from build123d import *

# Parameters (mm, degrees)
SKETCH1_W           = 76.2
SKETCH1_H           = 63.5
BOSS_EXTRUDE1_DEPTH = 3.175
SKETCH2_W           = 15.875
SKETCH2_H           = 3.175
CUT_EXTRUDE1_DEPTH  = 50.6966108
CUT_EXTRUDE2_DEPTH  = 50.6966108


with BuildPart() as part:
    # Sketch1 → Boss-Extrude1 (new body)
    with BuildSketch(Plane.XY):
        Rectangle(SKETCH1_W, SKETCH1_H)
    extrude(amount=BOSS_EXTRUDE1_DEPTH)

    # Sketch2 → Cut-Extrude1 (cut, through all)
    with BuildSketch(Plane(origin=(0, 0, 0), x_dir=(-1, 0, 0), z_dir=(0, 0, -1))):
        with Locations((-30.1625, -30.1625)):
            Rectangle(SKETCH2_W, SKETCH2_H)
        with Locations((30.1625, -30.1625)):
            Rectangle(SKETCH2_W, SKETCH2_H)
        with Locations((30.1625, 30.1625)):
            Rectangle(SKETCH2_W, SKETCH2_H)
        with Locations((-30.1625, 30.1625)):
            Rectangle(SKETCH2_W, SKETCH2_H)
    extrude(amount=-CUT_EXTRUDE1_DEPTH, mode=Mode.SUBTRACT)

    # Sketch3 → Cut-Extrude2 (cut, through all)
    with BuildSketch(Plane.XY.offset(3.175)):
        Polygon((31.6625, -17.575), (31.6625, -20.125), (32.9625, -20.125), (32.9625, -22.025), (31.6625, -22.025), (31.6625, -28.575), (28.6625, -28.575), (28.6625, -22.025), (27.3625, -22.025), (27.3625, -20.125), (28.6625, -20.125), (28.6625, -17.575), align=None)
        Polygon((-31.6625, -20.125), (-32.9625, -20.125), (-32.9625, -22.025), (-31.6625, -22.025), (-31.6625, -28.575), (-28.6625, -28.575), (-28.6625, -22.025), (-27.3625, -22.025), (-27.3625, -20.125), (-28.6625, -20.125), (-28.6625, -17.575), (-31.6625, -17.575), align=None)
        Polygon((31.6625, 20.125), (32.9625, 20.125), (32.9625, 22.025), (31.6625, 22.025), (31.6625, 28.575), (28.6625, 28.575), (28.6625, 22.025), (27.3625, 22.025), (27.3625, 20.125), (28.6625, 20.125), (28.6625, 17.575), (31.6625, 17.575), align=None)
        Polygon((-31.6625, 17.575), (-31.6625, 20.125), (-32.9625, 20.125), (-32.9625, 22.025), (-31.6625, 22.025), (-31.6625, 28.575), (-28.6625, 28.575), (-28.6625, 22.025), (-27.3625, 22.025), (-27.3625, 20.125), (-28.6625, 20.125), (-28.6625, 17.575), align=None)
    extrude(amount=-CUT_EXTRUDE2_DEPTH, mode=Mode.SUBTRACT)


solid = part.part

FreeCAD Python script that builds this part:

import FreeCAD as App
import Part
import Sketcher

V = App.Vector
Q = App.Units.Quantity

doc = App.newDocument("Part")
body = doc.addObject("PartDesign::Body", "Body")

# Sketch on XY plane
sketch1 = body.newObject("Sketcher::SketchObject", "Sketch")
sketch1.AttachmentSupport = (doc.getObject("XY_Plane"), [""])
sketch1.MapMode = "FlatFace"
sketch1.addGeometry([
    Part.LineSegment(V(-38, 32, 0), V(-38, -32, 0)),
    Part.LineSegment(V(-38, -32, 0), V(38, -32, 0)),
    Part.LineSegment(V(38, -32, 0), V(38, 32, 0)),
    Part.LineSegment(V(38, 32, 0), V(-38, 32, 0)),
], False)
sketch1.addConstraint([
    Sketcher.Constraint("Coincident", 0, 2, 1, 1),
    Sketcher.Constraint("Coincident", 1, 2, 2, 1),
    Sketcher.Constraint("Coincident", 2, 2, 3, 1),
    Sketcher.Constraint("Coincident", 3, 2, 0, 1),
    Sketcher.Constraint("Vertical", 0),
    Sketcher.Constraint("Horizontal", 1),
    Sketcher.Constraint("Vertical", 2),
    Sketcher.Constraint("Horizontal", 3),
    Sketcher.Constraint("Symmetric", 0, 2, 2, 2, -1, 1),
    Sketcher.Constraint("DistanceX", 1, 1, 1, 2, Q("3 in")),
    Sketcher.Constraint("DistanceY", 0, 2, 0, 1, Q("2.5 in")),
])
pad1 = body.newObject("PartDesign::Pad", "Pad")
pad1.Profile = sketch1
pad1.Length = Q("0.125 in")

# Sketch on XY plane
sketch2 = body.newObject("Sketcher::SketchObject", "Sketch001")
sketch2.AttachmentSupport = (doc.getObject("XY_Plane"), [""])
sketch2.MapMode = "FlatFace"
sketch2.addGeometry([
    Part.LineSegment(V(38.1, -28.6, 0), V(38.1, -31.8, 0)),  # 0
    Part.LineSegment(V(38.1, -31.8, 0), V(22.2, -31.8, 0)),  # 1
    Part.LineSegment(V(22.2, -31.8, 0), V(22.2, -28.6, 0)),  # 2
    Part.LineSegment(V(22.2, -28.6, 0), V(38.1, -28.6, 0)),  # 3
    Part.LineSegment(V(-22.2, -28.6, 0), V(-22.2, -31.8, 0)),  # 4
    Part.LineSegment(V(-22.2, -31.8, 0), V(-38.1, -31.8, 0)),  # 5
    Part.LineSegment(V(-38.1, -31.8, 0), V(-38.1, -28.6, 0)),  # 6
    Part.LineSegment(V(-38.1, -28.6, 0), V(-22.2, -28.6, 0)),  # 7
    Part.LineSegment(V(-22.2, 31.8, 0), V(-22.2, 28.6, 0)),  # 8
    Part.LineSegment(V(-22.2, 28.6, 0), V(-38.1, 28.6, 0)),  # 9
    Part.LineSegment(V(-38.1, 28.6, 0), V(-38.1, 31.8, 0)),  # 10
    Part.LineSegment(V(-38.1, 31.8, 0), V(-22.2, 31.8, 0)),  # 11
    Part.LineSegment(V(38.1, 31.8, 0), V(38.1, 28.6, 0)),  # 12
    Part.LineSegment(V(38.1, 28.6, 0), V(22.2, 28.6, 0)),  # 13
    Part.LineSegment(V(22.2, 28.6, 0), V(22.2, 31.8, 0)),  # 14
    Part.LineSegment(V(22.2, 31.8, 0), V(38.1, 31.8, 0)),  # 15
], False)
sketch2.addConstraint([
    Sketcher.Constraint("Coincident", 0, 2, 1, 1),
    Sketcher.Constraint("Coincident", 1, 2, 2, 1),
    Sketcher.Constraint("Coincident", 2, 2, 3, 1),
    Sketcher.Constraint("Coincident", 3, 2, 0, 1),
    Sketcher.Constraint("Coincident", 4, 2, 5, 1),
    Sketcher.Constraint("Coincident", 5, 2, 6, 1),
    Sketcher.Constraint("Coincident", 6, 2, 7, 1),
    Sketcher.Constraint("Coincident", 7, 2, 4, 1),
    Sketcher.Constraint("Coincident", 8, 2, 9, 1),
    Sketcher.Constraint("Coincident", 9, 2, 10, 1),
    Sketcher.Constraint("Coincident", 10, 2, 11, 1),
    Sketcher.Constraint("Coincident", 11, 2, 8, 1),
    Sketcher.Constraint("Coincident", 12, 2, 13, 1),
    Sketcher.Constraint("Coincident", 13, 2, 14, 1),
    Sketcher.Constraint("Coincident", 14, 2, 15, 1),
    Sketcher.Constraint("Coincident", 15, 2, 12, 1),
    Sketcher.Constraint("Vertical", 0),
    Sketcher.Constraint("Horizontal", 1),
    Sketcher.Constraint("Vertical", 2),
    Sketcher.Constraint("Horizontal", 3),
    Sketcher.Constraint("Vertical", 4),
    Sketcher.Constraint("Horizontal", 5),
    Sketcher.Constraint("Vertical", 6),
    Sketcher.Constraint("Horizontal", 7),
    Sketcher.Constraint("Vertical", 8),
    Sketcher.Constraint("Horizontal", 9),
    Sketcher.Constraint("Vertical", 10),
    Sketcher.Constraint("Horizontal", 11),
    Sketcher.Constraint("Vertical", 12),
    Sketcher.Constraint("Horizontal", 13),
    Sketcher.Constraint("Vertical", 14),
    Sketcher.Constraint("Horizontal", 15),
    Sketcher.Constraint("Symmetric", 2, 2, 8, 2, -1, 1),
    Sketcher.Constraint("Symmetric", 0, 2, 10, 2, -1, 1),
    Sketcher.Constraint("Symmetric", 6, 2, 12, 2, -1, 1),
    Sketcher.Constraint("Symmetric", 4, 2, 14, 2, -1, 1),
    Sketcher.Constraint("Symmetric", 1, 2, 4, 2, -2),
    Sketcher.Constraint("Symmetric", 3, 2, 6, 2, -2),
    Sketcher.Constraint("DistanceX", 5, 2, 0, 2, Q("3 in")),
    Sketcher.Constraint("DistanceY", 5, 2, 10, 2, Q("2.5 in")),
    Sketcher.Constraint("DistanceX", 1, 2, 1, 1, Q("0.625 in")),
    Sketcher.Constraint("DistanceY", 0, 2, 0, 1, Q("0.125 in")),
])
pocket1 = body.newObject("PartDesign::Pocket", "Pocket")
pocket1.Profile = sketch2
pocket1.Type = "ThroughAll"
pocket1.Reversed = True

# Sketch on XY plane
sketch3 = body.newObject("Sketcher::SketchObject", "Sketch002")
sketch3.AttachmentSupport = (doc.getObject("XY_Plane"), [""])
sketch3.MapMode = "FlatFace"
sketch3.AttachmentOffset = App.Placement(V(0, 0, 0.125 * 25.4), App.Rotation())
sketch3.addGeometry([
    Part.LineSegment(V(31.7, -20.1, 0), V(31.7, -17.6, 0)),  # 0
    Part.LineSegment(V(31.7, -17.6, 0), V(28.7, -17.6, 0)),  # 1
    Part.LineSegment(V(28.7, -17.6, 0), V(28.7, -20.1, 0)),  # 2
    Part.LineSegment(V(28.7, -20.1, 0), V(27.4, -20.1, 0)),  # 3
    Part.LineSegment(V(27.4, -20.1, 0), V(27.4, -22, 0)),  # 4
    Part.LineSegment(V(27.4, -22, 0), V(28.7, -22, 0)),  # 5
    Part.LineSegment(V(28.7, -22, 0), V(28.7, -28.6, 0)),  # 6
    Part.LineSegment(V(28.7, -28.6, 0), V(31.7, -28.6, 0)),  # 7
    Part.LineSegment(V(31.7, -28.6, 0), V(31.7, -22, 0)),  # 8
    Part.LineSegment(V(31.7, -22, 0), V(33, -22, 0)),  # 9
    Part.LineSegment(V(33, -22, 0), V(33, -20.1, 0)),  # 10
    Part.LineSegment(V(33, -20.1, 0), V(31.7, -20.1, 0)),  # 11
    Part.LineSegment(V(-31.7, -20.1, 0), V(-33, -20.1, 0)),  # 12
    Part.LineSegment(V(-33, -20.1, 0), V(-33, -22, 0)),  # 13
    Part.LineSegment(V(-33, -22, 0), V(-31.7, -22, 0)),  # 14
    Part.LineSegment(V(-31.7, -22, 0), V(-31.7, -28.6, 0)),  # 15
    Part.LineSegment(V(-31.7, -28.6, 0), V(-28.7, -28.6, 0)),  # 16
    Part.LineSegment(V(-28.7, -28.6, 0), V(-28.7, -22, 0)),  # 17
    Part.LineSegment(V(-28.7, -22, 0), V(-27.4, -22, 0)),  # 18
    Part.LineSegment(V(-27.4, -22, 0), V(-27.4, -20.1, 0)),  # 19
    Part.LineSegment(V(-27.4, -20.1, 0), V(-28.7, -20.1, 0)),  # 20
    Part.LineSegment(V(-28.7, -20.1, 0), V(-28.7, -17.6, 0)),  # 21
    Part.LineSegment(V(-28.7, -17.6, 0), V(-31.7, -17.6, 0)),  # 22
    Part.LineSegment(V(-31.7, -17.6, 0), V(-31.7, -20.1, 0)),  # 23
    Part.LineSegment(V(31.7, 20.1, 0), V(33, 20.1, 0)),  # 24
    Part.LineSegment(V(33, 20.1, 0), V(33, 22, 0)),  # 25
    Part.LineSegment(V(33, 22, 0), V(31.7, 22, 0)),  # 26
    Part.LineSegment(V(31.7, 22, 0), V(31.7, 28.6, 0)),  # 27
    Part.LineSegment(V(31.7, 28.6, 0), V(28.7, 28.6, 0)),  # 28
    Part.LineSegment(V(28.7, 28.6, 0), V(28.7, 22, 0)),  # 29
    Part.LineSegment(V(28.7, 22, 0), V(27.4, 22, 0)),  # 30
    Part.LineSegment(V(27.4, 22, 0), V(27.4, 20.1, 0)),  # 31
    Part.LineSegment(V(27.4, 20.1, 0), V(28.7, 20.1, 0)),  # 32
    Part.LineSegment(V(28.7, 20.1, 0), V(28.7, 17.6, 0)),  # 33
    Part.LineSegment(V(28.7, 17.6, 0), V(31.7, 17.6, 0)),  # 34
    Part.LineSegment(V(31.7, 17.6, 0), V(31.7, 20.1, 0)),  # 35
    Part.LineSegment(V(-31.7, 20.1, 0), V(-31.7, 17.6, 0)),  # 36
    Part.LineSegment(V(-31.7, 17.6, 0), V(-28.7, 17.6, 0)),  # 37
    Part.LineSegment(V(-28.7, 17.6, 0), V(-28.7, 20.1, 0)),  # 38
    Part.LineSegment(V(-28.7, 20.1, 0), V(-27.4, 20.1, 0)),  # 39
    Part.LineSegment(V(-27.4, 20.1, 0), V(-27.4, 22, 0)),  # 40
    Part.LineSegment(V(-27.4, 22, 0), V(-28.7, 22, 0)),  # 41
    Part.LineSegment(V(-28.7, 22, 0), V(-28.7, 28.6, 0)),  # 42
    Part.LineSegment(V(-28.7, 28.6, 0), V(-31.7, 28.6, 0)),  # 43
    Part.LineSegment(V(-31.7, 28.6, 0), V(-31.7, 22, 0)),  # 44
    Part.LineSegment(V(-31.7, 22, 0), V(-33, 22, 0)),  # 45
    Part.LineSegment(V(-33, 22, 0), V(-33, 20.1, 0)),  # 46
    Part.LineSegment(V(-33, 20.1, 0), V(-31.7, 20.1, 0)),  # 47
], False)
sketch3.addConstraint([
    Sketcher.Constraint("Coincident", 0, 2, 1, 1),
    Sketcher.Constraint("Coincident", 1, 2, 2, 1),
    Sketcher.Constraint("Coincident", 2, 2, 3, 1),
    Sketcher.Constraint("Coincident", 3, 2, 4, 1),
    Sketcher.Constraint("Coincident", 4, 2, 5, 1),
    Sketcher.Constraint("Coincident", 5, 2, 6, 1),
    Sketcher.Constraint("Coincident", 6, 2, 7, 1),
    Sketcher.Constraint("Coincident", 7, 2, 8, 1),
    Sketcher.Constraint("Coincident", 8, 2, 9, 1),
    Sketcher.Constraint("Coincident", 9, 2, 10, 1),
    Sketcher.Constraint("Coincident", 10, 2, 11, 1),
    Sketcher.Constraint("Coincident", 11, 2, 0, 1),
    Sketcher.Constraint("Coincident", 12, 2, 13, 1),
    Sketcher.Constraint("Coincident", 13, 2, 14, 1),
    Sketcher.Constraint("Coincident", 14, 2, 15, 1),
    Sketcher.Constraint("Coincident", 15, 2, 16, 1),
    Sketcher.Constraint("Coincident", 16, 2, 17, 1),
    Sketcher.Constraint("Coincident", 17, 2, 18, 1),
    Sketcher.Constraint("Coincident", 18, 2, 19, 1),
    Sketcher.Constraint("Coincident", 19, 2, 20, 1),
    Sketcher.Constraint("Coincident", 20, 2, 21, 1),
    Sketcher.Constraint("Coincident", 21, 2, 22, 1),
    Sketcher.Constraint("Coincident", 22, 2, 23, 1),
    Sketcher.Constraint("Coincident", 23, 2, 12, 1),
    Sketcher.Constraint("Coincident", 24, 2, 25, 1),
    Sketcher.Constraint("Coincident", 25, 2, 26, 1),
    Sketcher.Constraint("Coincident", 26, 2, 27, 1),
    Sketcher.Constraint("Coincident", 27, 2, 28, 1),
    Sketcher.Constraint("Coincident", 28, 2, 29, 1),
    Sketcher.Constraint("Coincident", 29, 2, 30, 1),
    Sketcher.Constraint("Coincident", 30, 2, 31, 1),
    Sketcher.Constraint("Coincident", 31, 2, 32, 1),
    Sketcher.Constraint("Coincident", 32, 2, 33, 1),
    Sketcher.Constraint("Coincident", 33, 2, 34, 1),
    Sketcher.Constraint("Coincident", 34, 2, 35, 1),
    Sketcher.Constraint("Coincident", 35, 2, 24, 1),
    Sketcher.Constraint("Coincident", 36, 2, 37, 1),
    Sketcher.Constraint("Coincident", 37, 2, 38, 1),
    Sketcher.Constraint("Coincident", 38, 2, 39, 1),
    Sketcher.Constraint("Coincident", 39, 2, 40, 1),
    Sketcher.Constraint("Coincident", 40, 2, 41, 1),
    Sketcher.Constraint("Coincident", 41, 2, 42, 1),
    Sketcher.Constraint("Coincident", 42, 2, 43, 1),
    Sketcher.Constraint("Coincident", 43, 2, 44, 1),
    Sketcher.Constraint("Coincident", 44, 2, 45, 1),
    Sketcher.Constraint("Coincident", 45, 2, 46, 1),
    Sketcher.Constraint("Coincident", 46, 2, 47, 1),
    Sketcher.Constraint("Coincident", 47, 2, 36, 1),
    Sketcher.Constraint("Vertical", 0),
    Sketcher.Constraint("Horizontal", 1),
    Sketcher.Constraint("Vertical", 2),
    Sketcher.Constraint("Horizontal", 3),
    Sketcher.Constraint("Vertical", 4),
    Sketcher.Constraint("Horizontal", 5),
    Sketcher.Constraint("Vertical", 6),
    Sketcher.Constraint("Horizontal", 7),
    Sketcher.Constraint("Vertical", 8),
    Sketcher.Constraint("Horizontal", 9),
    Sketcher.Constraint("Vertical", 10),
    Sketcher.Constraint("Horizontal", 11),
    Sketcher.Constraint("Horizontal", 12),
    Sketcher.Constraint("Vertical", 13),
    Sketcher.Constraint("Horizontal", 14),
    Sketcher.Constraint("Vertical", 15),
    Sketcher.Constraint("Horizontal", 16),
    Sketcher.Constraint("Vertical", 17),
    Sketcher.Constraint("Horizontal", 18),
    Sketcher.Constraint("Vertical", 19),
    Sketcher.Constraint("Horizontal", 20),
    Sketcher.Constraint("Vertical", 21),
    Sketcher.Constraint("Horizontal", 22),
    Sketcher.Constraint("Vertical", 23),
    Sketcher.Constraint("Horizontal", 24),
    Sketcher.Constraint("Vertical", 25),
    Sketcher.Constraint("Horizontal", 26),
    Sketcher.Constraint("Vertical", 27),
    Sketcher.Constraint("Horizontal", 28),
    Sketcher.Constraint("Vertical", 29),
    Sketcher.Constraint("Horizontal", 30),
    Sketcher.Constraint("Vertical", 31),
    Sketcher.Constraint("Horizontal", 32),
    Sketcher.Constraint("Vertical", 33),
    Sketcher.Constraint("Horizontal", 34),
    Sketcher.Constraint("Vertical", 35),
    Sketcher.Constraint("Vertical", 36),
    Sketcher.Constraint("Horizontal", 37),
    Sketcher.Constraint("Vertical", 38),
    Sketcher.Constraint("Horizontal", 39),
    Sketcher.Constraint("Vertical", 40),
    Sketcher.Constraint("Horizontal", 41),
    Sketcher.Constraint("Vertical", 42),
    Sketcher.Constraint("Horizontal", 43),
    Sketcher.Constraint("Vertical", 44),
    Sketcher.Constraint("Horizontal", 45),
    Sketcher.Constraint("Vertical", 46),
    Sketcher.Constraint("Horizontal", 47),
    Sketcher.Constraint("Symmetric", 12, 2, 24, 2, -1, 1),
    Sketcher.Constraint("Symmetric", 14, 2, 26, 2, -1, 1),
    Sketcher.Constraint("Symmetric", 16, 2, 28, 2, -1, 1),
    Sketcher.Constraint("Symmetric", 18, 2, 30, 2, -1, 1),
    Sketcher.Constraint("Symmetric", 20, 2, 32, 2, -1, 1),
    Sketcher.Constraint("Symmetric", 22, 2, 34, 2, -1, 1),
    Sketcher.Constraint("Symmetric", 0, 2, 36, 2, -1, 1),
    Sketcher.Constraint("Symmetric", 2, 2, 38, 2, -1, 1),
    Sketcher.Constraint("Symmetric", 4, 2, 40, 2, -1, 1),
    Sketcher.Constraint("Symmetric", 6, 2, 42, 2, -1, 1),
    Sketcher.Constraint("Symmetric", 8, 2, 44, 2, -1, 1),
    Sketcher.Constraint("Symmetric", 10, 2, 46, 2, -1, 1),
    Sketcher.Constraint("Symmetric", 10, 2, 12, 2, -2),
    Sketcher.Constraint("Symmetric", 8, 2, 14, 2, -2),
    Sketcher.Constraint("Symmetric", 6, 2, 16, 2, -2),
    Sketcher.Constraint("Symmetric", 4, 2, 18, 2, -2),
    Sketcher.Constraint("Symmetric", 2, 2, 20, 2, -2),
    Sketcher.Constraint("Symmetric", 0, 2, 22, 2, -2),
    Sketcher.Constraint("Horizontal", 5, 2, 8, 2),
    Sketcher.Constraint("Horizontal", 3, 2, 10, 2),
    Sketcher.Constraint("Vertical", 2, 2, 5, 2),
    Sketcher.Constraint("Vertical", 0, 2, 7, 2),
    Sketcher.Constraint("Equal", 5, 9),
    Sketcher.Constraint("DistanceY", 6, 2, -1, 1, Q("1.125 in")),
    Sketcher.Constraint("DistanceX", 12, 2, 3, 2, Q("2.375 in")),
    Sketcher.Constraint("DistanceX", 1, 2, 1, 1, 3.0),
    Sketcher.Constraint("DistanceX", 3, 2, 3, 1, 1.3),
    Sketcher.Constraint("DistanceY", 0, 1, 0, 2, 2.55),
    Sketcher.Constraint("DistanceY", 4, 2, 4, 1, 1.9),
    Sketcher.Constraint("DistanceY", 6, 2, 6, 1, 6.55),
])
pocket2 = body.newObject("PartDesign::Pocket", "Pocket001")
pocket2.Profile = sketch3
pocket2.Type = "ThroughAll"

doc.recompute()
